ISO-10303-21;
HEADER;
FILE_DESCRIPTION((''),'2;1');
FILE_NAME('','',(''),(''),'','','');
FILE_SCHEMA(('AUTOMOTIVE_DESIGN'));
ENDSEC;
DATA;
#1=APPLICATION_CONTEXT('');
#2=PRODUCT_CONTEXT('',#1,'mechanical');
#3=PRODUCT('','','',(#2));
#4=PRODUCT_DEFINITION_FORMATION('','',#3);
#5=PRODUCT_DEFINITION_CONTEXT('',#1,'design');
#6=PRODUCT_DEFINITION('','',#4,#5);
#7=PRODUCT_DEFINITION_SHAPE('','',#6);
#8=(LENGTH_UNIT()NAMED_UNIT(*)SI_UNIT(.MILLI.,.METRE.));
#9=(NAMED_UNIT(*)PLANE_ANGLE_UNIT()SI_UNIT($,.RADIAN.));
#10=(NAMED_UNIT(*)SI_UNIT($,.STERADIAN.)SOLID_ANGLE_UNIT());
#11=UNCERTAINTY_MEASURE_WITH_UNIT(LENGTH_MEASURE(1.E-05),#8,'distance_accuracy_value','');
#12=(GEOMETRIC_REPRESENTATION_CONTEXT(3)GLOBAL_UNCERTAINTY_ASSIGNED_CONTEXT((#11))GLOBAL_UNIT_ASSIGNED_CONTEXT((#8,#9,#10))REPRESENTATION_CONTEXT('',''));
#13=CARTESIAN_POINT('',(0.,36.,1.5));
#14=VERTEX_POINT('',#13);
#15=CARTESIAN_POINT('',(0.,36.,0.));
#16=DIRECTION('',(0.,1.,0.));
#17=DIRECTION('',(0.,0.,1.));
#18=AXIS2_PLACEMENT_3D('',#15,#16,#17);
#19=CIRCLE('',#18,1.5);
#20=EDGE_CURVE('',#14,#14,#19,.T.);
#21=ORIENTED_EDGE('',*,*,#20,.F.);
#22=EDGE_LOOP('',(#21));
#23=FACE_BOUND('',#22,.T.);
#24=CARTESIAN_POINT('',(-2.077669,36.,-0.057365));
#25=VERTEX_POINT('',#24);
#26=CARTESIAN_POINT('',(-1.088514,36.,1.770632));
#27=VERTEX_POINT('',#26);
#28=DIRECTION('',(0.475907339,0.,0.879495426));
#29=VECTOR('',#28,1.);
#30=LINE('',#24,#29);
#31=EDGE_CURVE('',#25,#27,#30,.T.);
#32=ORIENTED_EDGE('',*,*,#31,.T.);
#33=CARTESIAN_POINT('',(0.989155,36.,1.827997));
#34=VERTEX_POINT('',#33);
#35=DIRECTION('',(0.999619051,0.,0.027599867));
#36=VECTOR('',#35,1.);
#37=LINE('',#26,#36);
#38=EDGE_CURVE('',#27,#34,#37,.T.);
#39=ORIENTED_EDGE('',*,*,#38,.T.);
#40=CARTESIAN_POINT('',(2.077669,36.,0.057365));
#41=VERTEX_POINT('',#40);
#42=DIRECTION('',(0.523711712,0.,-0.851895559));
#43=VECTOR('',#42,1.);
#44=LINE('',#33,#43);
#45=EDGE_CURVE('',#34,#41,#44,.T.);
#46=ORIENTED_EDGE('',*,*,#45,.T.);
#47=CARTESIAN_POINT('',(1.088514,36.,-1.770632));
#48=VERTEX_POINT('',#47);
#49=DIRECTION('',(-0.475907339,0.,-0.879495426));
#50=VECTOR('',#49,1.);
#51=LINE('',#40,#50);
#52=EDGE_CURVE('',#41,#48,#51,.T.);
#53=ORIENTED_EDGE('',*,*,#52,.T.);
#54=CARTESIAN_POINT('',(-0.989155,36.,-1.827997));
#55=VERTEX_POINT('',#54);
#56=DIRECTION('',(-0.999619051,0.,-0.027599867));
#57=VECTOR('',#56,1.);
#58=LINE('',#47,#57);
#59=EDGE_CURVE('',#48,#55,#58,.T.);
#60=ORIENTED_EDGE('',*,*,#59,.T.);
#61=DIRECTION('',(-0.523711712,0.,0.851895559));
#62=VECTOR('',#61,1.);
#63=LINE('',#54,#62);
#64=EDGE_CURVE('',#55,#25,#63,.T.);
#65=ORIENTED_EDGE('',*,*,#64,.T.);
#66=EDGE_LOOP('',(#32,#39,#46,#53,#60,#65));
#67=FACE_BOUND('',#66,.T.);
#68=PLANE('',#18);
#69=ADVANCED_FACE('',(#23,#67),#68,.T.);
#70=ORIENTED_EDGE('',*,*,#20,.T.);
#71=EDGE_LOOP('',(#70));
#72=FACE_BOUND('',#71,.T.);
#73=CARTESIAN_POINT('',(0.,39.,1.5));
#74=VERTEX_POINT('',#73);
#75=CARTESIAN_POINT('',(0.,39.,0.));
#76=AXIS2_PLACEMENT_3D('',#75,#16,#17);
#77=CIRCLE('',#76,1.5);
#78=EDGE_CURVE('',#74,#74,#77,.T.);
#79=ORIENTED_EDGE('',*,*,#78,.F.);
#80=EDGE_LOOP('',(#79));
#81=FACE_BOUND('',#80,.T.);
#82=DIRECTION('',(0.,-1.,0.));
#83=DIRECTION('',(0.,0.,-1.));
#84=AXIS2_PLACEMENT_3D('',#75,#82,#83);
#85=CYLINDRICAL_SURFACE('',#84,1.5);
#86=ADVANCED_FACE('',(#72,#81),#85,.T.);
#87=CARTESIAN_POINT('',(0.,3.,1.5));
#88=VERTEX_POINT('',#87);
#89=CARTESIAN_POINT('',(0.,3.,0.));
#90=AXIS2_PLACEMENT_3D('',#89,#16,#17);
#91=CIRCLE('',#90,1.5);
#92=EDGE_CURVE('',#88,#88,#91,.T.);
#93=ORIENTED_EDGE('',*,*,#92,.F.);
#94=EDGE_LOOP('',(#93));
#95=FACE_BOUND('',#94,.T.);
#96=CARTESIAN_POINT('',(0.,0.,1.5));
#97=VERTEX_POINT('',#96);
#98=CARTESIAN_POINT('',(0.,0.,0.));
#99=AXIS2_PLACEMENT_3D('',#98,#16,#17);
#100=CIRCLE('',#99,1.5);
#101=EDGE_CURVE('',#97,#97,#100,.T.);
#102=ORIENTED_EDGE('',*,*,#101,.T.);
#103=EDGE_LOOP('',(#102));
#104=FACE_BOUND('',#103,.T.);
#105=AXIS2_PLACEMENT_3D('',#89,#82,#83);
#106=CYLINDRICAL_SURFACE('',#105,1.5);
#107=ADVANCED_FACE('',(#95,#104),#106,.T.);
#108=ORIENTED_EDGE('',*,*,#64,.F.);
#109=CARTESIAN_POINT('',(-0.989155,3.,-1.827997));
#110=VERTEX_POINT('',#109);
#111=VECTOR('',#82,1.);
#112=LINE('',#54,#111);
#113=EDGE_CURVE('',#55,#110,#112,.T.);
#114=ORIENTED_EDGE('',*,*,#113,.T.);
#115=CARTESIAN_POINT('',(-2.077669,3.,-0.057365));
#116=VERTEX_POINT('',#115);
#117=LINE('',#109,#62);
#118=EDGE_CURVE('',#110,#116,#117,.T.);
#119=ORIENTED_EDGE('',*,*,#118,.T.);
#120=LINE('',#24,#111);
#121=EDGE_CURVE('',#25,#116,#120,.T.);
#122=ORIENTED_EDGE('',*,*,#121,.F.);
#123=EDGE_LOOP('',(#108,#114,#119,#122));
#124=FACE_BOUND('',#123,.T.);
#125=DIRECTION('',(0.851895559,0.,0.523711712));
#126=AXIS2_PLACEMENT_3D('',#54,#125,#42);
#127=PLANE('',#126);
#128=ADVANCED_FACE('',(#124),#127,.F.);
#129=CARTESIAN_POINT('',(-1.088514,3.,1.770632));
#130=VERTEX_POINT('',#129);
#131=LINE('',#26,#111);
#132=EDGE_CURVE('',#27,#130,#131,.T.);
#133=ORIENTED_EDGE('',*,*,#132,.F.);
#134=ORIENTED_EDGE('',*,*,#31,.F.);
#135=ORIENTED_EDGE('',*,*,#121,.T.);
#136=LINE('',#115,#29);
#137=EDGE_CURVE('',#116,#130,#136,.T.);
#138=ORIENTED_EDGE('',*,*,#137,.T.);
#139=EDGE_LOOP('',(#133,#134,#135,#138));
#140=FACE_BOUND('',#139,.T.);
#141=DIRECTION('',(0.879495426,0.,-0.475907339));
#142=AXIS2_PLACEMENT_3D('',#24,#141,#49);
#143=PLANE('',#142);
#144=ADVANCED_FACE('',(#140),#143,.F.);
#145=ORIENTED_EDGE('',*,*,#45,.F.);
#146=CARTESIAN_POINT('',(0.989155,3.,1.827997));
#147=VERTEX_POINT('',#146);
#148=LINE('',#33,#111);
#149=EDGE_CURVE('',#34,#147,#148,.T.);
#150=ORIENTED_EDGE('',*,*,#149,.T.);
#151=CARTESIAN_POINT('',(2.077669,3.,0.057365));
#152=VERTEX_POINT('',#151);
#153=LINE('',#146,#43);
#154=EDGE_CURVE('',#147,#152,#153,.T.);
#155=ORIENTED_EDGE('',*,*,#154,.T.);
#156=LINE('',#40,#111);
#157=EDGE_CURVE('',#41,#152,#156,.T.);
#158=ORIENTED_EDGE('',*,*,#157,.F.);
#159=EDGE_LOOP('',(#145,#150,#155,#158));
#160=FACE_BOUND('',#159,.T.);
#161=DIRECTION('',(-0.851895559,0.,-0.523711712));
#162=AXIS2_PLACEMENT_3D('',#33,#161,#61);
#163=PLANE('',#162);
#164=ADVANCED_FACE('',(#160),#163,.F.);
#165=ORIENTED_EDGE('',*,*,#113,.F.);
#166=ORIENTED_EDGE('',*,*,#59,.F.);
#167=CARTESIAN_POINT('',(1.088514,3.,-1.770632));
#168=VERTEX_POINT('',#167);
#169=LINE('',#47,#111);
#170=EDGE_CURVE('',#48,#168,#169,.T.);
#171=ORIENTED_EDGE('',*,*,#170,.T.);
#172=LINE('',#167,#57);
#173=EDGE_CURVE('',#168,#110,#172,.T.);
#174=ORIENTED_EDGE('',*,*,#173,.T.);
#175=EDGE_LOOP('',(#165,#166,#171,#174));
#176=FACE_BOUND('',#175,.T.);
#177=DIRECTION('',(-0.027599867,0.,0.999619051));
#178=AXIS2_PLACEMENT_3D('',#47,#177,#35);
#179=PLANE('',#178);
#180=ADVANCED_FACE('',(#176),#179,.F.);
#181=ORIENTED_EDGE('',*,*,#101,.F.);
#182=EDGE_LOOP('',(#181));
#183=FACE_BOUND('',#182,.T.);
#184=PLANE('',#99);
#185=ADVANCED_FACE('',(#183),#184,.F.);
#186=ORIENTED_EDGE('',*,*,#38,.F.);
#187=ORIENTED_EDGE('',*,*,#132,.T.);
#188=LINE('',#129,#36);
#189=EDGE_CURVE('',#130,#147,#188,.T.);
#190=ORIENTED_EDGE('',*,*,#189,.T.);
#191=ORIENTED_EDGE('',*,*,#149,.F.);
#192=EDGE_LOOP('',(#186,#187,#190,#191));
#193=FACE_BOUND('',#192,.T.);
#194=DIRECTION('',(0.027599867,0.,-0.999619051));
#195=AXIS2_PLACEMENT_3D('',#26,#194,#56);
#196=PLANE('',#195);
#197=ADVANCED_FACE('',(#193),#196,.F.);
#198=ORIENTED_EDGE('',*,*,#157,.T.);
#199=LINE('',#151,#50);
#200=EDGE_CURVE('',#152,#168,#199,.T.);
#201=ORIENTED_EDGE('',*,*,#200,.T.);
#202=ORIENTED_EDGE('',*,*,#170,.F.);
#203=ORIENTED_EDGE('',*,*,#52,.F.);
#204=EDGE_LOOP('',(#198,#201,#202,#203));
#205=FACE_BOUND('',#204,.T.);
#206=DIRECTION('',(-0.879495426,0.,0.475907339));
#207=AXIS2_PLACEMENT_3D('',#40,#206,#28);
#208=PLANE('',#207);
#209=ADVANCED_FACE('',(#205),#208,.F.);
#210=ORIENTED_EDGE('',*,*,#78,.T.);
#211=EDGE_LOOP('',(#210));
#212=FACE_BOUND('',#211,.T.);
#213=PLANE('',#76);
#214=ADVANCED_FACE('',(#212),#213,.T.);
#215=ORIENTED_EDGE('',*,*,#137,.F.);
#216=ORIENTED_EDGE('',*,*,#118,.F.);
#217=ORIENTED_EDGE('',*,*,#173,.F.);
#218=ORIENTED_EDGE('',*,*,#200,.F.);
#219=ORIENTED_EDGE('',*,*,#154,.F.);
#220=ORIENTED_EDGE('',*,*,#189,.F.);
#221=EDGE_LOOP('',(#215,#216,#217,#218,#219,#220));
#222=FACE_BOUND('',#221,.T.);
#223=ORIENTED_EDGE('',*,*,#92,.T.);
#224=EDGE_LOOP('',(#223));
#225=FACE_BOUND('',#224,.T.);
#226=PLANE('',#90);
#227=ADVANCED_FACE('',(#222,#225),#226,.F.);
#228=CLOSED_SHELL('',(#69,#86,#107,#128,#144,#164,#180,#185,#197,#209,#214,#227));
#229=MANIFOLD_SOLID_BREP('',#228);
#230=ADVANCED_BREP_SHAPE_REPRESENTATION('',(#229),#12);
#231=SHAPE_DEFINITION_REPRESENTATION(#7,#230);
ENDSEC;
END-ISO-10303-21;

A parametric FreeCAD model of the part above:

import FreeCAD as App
import Part
import Sketcher

V = App.Vector
Q = App.Units.Quantity


def add_polygon(sketch, points):
    """Adds a closed chain of lines whose ends are joined by coincident constraints."""
    first, n = sketch.GeometryCount, len(points)
    for a, b in zip(points, points[1:] + points[:1]):
        sketch.addGeometry(Part.LineSegment(App.Vector(*a, 0), App.Vector(*b, 0)), False)
    for i in range(n):
        sketch.addConstraint(Sketcher.Constraint("Coincident", first + i, 2, first + (i + 1) % n, 1))

doc = App.newDocument("Part")
params = doc.addObject("Spreadsheet::Sheet", "Params")
for row, (alias, value) in enumerate([
    ("sketch1_diameter", "3 mm"),
    ("pad1_length", "3 mm"),
    ("pad2_length", "33 mm"),
    ("sketch3_diameter", "3 mm"),
    ("pad3_length", "3 mm"),
], start=1):
    params.set(f"A{row}", alias)
    params.set(f"B{row}", "=" + value)
    params.setAlias(f"B{row}", alias)

body = doc.addObject("PartDesign::Body", "Body")

# Sketch on XZ plane
sketch1 = doc.addObject("Sketcher::SketchObject", "Sketch")
body.addObject(sketch1)
sketch1.AttachmentSupport = (doc.XZ_Plane, [""])
sketch1.MapMode = "FlatFace"
sketch1.addGeometry(Part.Circle(V(0, 0, 0), V(0, 0, 1), 1.5), False)
sketch1.addConstraint(Sketcher.Constraint("Coincident", 0, 3, -1, 1))
sketch1.addConstraint(Sketcher.Constraint("Diameter", 0, Q("3 mm")))
sketch1.setExpression("Constraints[1]", "Params.sketch1_diameter")
pad1 = doc.addObject("PartDesign::Pad", "Pad")
body.addObject(pad1)
pad1.Profile = sketch1
pad1.setExpression("Length", "Params.pad1_length")
pad1.Reversed = True

# Sketch on XZ plane
sketch2 = doc.addObject("Sketcher::SketchObject", "Sketch001")
body.addObject(sketch2)
sketch2.AttachmentSupport = (doc.XZ_Plane, [""])
sketch2.MapMode = "FlatFace"
sketch2.AttachmentOffset = App.Placement(V(0, 0, -3), App.Rotation())
add_polygon(sketch2, [(-0.989155, -1.827997), (-2.077669, -0.057365), (-1.088514, 1.770632), (0.989155, 1.827997), (2.077669, 0.057365), (1.088514, -1.770632)])  # lines 0-5
sketch2.addConstraint(Sketcher.Constraint("Symmetric", 0, 2, 3, 2, -1, 1))
sketch2.addConstraint(Sketcher.Constraint("Symmetric", 1, 2, 4, 2, -1, 1))
sketch2.addConstraint(Sketcher.Constraint("Symmetric", 2, 2, 5, 2, -1, 1))
sketch2.addConstraint(Sketcher.Constraint("Equal", 0, 1))
sketch2.addConstraint(Sketcher.Constraint("Equal", 1, 2))
sketch2.addConstraint(Sketcher.Constraint("Distance", 0, Q("2.078461 mm")))
sketch2.addConstraint(Sketcher.Constraint("DistanceX", 0, 2, -1, 1, Q("2.077669 mm")))
sketch2.addConstraint(Sketcher.Constraint("DistanceY", -1, 1, 1, 2, Q("1.770632 mm")))
sketch2.addConstraint(Sketcher.Constraint("DistanceY", 3, 2, 2, 2, Q("1.770632 mm")))
pad2 = doc.addObject("PartDesign::Pad", "Pad001")
body.addObject(pad2)
pad2.Profile = sketch2
pad2.setExpression("Length", "Params.pad2_length")
pad2.Reversed = True

# Sketch on XZ plane
sketch3 = doc.addObject("Sketcher::SketchObject", "Sketch002")
body.addObject(sketch3)
sketch3.AttachmentSupport = (doc.XZ_Plane, [""])
sketch3.MapMode = "FlatFace"
sketch3.AttachmentOffset = App.Placement(V(0, 0, -36), App.Rotation())
sketch3.addGeometry(Part.Circle(V(0, 0, 0), V(0, 0, 1), 1.5), False)
sketch3.addConstraint(Sketcher.Constraint("Coincident", 0, 3, -1, 1))
sketch3.addConstraint(Sketcher.Constraint("Diameter", 0, Q("3 mm")))
sketch3.setExpression("Constraints[1]", "Params.sketch3_diameter")
pad3 = doc.addObject("PartDesign::Pad", "Pad002")
body.addObject(pad3)
pad3.Profile = sketch3
pad3.setExpression("Length", "Params.pad3_length")
pad3.Reversed = True

doc.recompute()
